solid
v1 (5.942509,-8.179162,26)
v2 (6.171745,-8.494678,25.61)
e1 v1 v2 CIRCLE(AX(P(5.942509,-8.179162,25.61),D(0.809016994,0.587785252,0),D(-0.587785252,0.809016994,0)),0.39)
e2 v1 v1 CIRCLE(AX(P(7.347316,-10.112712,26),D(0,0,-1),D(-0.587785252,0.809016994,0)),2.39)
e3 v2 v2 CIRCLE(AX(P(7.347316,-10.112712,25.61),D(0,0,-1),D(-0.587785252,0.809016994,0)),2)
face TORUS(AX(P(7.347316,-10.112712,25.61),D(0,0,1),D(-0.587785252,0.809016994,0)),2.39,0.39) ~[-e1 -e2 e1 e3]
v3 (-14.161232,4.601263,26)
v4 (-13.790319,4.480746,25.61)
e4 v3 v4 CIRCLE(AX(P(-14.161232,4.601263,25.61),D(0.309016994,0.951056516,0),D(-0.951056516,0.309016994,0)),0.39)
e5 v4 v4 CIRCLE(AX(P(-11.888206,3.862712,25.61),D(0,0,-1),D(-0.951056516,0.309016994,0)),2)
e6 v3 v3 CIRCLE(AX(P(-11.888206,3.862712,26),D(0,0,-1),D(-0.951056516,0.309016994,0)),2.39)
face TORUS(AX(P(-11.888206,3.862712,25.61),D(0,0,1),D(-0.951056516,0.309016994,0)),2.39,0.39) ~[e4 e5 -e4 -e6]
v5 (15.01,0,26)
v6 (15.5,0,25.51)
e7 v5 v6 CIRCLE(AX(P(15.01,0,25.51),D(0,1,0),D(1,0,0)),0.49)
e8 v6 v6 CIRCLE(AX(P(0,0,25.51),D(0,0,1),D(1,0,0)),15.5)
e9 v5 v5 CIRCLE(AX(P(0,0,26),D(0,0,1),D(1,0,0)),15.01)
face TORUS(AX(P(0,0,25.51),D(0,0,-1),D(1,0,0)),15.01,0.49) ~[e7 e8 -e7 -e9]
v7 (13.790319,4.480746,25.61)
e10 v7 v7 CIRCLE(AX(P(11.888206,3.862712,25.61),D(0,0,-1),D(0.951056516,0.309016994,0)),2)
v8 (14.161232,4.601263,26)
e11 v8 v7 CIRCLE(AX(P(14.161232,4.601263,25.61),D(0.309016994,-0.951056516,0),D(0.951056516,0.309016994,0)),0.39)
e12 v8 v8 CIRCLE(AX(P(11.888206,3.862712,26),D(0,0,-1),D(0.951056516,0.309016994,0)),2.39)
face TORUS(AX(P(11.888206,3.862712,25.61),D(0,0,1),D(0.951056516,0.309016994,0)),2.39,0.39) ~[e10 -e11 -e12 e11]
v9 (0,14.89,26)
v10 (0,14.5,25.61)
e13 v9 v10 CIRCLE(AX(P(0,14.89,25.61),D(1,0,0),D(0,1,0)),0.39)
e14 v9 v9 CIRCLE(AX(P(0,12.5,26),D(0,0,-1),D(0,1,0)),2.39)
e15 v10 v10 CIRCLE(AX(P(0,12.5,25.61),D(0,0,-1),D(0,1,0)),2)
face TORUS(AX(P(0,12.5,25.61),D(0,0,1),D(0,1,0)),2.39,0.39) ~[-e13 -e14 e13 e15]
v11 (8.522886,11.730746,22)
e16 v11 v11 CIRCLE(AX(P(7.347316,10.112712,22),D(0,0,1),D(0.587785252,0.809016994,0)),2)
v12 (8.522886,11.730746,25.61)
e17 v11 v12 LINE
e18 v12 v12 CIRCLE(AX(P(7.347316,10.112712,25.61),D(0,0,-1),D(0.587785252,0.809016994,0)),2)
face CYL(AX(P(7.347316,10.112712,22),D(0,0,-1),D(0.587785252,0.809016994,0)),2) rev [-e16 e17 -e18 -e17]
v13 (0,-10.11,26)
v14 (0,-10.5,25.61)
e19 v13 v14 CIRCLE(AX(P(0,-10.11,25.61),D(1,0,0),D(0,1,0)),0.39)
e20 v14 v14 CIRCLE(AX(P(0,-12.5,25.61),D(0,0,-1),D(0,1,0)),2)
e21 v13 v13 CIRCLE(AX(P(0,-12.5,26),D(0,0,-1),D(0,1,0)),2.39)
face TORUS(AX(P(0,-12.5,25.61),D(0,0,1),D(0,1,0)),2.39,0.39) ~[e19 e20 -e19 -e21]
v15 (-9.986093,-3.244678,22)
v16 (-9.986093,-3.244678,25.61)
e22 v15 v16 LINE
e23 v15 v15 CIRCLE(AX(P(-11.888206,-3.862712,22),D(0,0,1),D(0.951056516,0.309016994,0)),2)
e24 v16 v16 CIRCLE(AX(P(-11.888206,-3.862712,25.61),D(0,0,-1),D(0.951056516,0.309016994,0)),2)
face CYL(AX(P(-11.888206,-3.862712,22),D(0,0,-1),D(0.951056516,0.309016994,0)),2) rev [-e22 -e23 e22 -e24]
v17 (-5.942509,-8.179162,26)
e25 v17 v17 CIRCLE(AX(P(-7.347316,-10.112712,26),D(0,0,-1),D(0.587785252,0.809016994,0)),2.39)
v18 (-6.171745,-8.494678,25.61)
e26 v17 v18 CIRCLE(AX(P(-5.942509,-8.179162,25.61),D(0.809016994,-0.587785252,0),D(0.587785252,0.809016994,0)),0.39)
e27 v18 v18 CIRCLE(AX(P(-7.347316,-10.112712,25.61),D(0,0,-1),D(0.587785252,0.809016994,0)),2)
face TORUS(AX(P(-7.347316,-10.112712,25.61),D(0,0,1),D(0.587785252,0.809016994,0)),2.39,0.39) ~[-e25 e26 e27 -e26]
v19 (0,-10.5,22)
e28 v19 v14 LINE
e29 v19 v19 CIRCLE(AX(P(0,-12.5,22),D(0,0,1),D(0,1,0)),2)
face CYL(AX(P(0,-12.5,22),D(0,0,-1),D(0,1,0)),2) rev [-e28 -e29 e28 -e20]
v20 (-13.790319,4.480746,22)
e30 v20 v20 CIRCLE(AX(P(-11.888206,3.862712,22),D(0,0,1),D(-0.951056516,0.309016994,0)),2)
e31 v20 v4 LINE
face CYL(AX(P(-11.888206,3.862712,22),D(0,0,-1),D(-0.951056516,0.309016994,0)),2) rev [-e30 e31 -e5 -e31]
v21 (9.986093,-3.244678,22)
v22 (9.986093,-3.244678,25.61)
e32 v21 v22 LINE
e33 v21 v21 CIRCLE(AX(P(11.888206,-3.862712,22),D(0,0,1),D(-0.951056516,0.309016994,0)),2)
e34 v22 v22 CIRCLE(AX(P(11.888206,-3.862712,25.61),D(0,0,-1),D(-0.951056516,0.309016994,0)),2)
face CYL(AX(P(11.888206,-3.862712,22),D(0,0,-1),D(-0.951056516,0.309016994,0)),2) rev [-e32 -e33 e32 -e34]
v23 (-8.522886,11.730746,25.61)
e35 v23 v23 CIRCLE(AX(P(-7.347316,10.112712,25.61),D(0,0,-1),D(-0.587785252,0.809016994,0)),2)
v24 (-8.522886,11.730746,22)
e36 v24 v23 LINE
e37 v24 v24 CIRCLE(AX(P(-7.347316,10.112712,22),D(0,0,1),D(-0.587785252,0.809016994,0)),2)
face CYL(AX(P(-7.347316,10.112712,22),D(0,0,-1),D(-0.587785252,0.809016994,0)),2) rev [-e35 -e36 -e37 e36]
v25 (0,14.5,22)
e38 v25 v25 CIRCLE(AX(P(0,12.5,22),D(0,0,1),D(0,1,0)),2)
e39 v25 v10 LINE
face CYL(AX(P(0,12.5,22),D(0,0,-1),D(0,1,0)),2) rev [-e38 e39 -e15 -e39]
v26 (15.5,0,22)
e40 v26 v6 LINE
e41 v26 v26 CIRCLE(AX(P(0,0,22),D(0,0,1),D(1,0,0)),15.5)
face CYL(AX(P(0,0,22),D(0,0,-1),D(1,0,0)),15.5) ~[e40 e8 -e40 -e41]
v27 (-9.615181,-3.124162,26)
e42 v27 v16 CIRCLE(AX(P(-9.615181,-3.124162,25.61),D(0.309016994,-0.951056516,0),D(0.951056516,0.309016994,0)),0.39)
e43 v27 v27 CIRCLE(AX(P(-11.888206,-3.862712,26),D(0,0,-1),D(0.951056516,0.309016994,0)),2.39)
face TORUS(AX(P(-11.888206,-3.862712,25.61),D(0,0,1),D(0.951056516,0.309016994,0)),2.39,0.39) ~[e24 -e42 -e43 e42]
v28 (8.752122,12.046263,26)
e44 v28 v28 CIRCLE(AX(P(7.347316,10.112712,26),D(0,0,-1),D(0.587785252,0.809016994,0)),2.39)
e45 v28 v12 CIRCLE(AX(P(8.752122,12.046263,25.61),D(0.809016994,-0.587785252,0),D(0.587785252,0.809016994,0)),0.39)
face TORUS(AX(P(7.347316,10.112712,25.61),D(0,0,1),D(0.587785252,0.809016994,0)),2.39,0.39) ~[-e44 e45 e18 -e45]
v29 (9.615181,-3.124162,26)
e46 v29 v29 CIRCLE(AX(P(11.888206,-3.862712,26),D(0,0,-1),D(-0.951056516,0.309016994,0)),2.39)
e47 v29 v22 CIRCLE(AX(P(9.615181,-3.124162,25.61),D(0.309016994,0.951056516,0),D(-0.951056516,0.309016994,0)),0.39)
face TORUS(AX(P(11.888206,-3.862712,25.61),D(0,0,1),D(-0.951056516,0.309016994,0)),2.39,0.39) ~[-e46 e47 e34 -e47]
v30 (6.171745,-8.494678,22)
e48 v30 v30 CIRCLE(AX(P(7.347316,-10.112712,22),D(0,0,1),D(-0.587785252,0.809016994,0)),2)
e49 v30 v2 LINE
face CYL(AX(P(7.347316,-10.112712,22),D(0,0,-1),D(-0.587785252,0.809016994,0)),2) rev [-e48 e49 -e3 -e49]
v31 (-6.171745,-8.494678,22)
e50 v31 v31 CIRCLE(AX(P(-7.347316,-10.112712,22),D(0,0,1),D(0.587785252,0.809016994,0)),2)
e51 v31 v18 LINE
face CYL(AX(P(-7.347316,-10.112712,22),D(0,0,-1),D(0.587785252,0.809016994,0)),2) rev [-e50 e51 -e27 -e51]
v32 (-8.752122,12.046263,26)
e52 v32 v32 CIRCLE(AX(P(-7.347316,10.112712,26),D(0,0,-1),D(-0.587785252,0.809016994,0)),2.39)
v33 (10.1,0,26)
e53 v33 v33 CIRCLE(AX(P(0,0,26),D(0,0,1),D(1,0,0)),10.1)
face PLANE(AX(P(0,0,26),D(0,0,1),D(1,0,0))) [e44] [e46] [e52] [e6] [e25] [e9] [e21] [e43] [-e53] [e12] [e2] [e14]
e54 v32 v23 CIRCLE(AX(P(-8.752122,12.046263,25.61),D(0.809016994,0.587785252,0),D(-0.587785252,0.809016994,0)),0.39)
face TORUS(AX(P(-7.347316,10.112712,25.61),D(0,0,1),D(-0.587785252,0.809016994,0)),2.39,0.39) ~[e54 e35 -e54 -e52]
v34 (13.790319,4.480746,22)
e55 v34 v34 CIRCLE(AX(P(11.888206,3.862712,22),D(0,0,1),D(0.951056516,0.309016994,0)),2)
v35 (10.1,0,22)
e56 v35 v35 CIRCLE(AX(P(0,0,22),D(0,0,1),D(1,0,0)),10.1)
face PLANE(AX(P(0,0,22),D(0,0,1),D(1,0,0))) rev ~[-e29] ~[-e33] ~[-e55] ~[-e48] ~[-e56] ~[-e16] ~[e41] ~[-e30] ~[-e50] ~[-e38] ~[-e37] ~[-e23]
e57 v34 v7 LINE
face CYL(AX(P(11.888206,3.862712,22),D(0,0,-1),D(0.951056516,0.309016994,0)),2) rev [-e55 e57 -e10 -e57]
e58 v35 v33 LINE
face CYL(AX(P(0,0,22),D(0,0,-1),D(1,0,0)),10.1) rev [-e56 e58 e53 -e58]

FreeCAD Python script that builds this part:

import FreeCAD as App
import Part
import Sketcher
from FreeCAD import Vector
Q = App.Units.Quantity


def edges_at(feature, points):
    """Names of the edges that pass closest to the given points."""
    edges = feature.Shape.Edges
    near = lambda p: min(range(len(edges)), key=lambda i: edges[i].distToShape(Part.Vertex(*p))[0])
    return sorted({f"Edge{near(p) + 1}" for p in points})

doc = App.newDocument("Part")
body = doc.addObject("PartDesign::Body", "Body")

# Sketch on XY plane
sketch1 = body.newObject("Sketcher::SketchObject", "Sketch")
sketch1.AttachmentSupport = (doc.getObject("XY_Plane"), [""])
sketch1.MapMode = "FlatFace"
sketch1.AttachmentOffset = App.Placement(Vector(0, 0, 22), App.Rotation())
sketch1.addGeometry(Part.Circle(Vector(0, 0, 0), Vector(0, 0, 1), 10), False)
sketch1.addConstraint([
    Sketcher.Constraint("Coincident", 0, 3, -1, 1),
    Sketcher.Constraint("Diameter", 0, Q("20.2 mm")),
])
pad1 = body.newObject("PartDesign::Pad", "Pad")
pad1.Profile = sketch1
pad1.Length = 4
body2 = doc.addObject("PartDesign::Body", "Body001")

# Sketch on XY plane
sketch2 = body2.newObject("Sketcher::SketchObject", "Sketch001")
sketch2.AttachmentSupport = (doc.getObject("XY_Plane001"), [""])
sketch2.MapMode = "FlatFace"
sketch2.AttachmentOffset = App.Placement(Vector(0, 0, 13), App.Rotation())
sketch2.addGeometry(Part.Circle(Vector(-12.5, 0, 0), Vector(0, 0, 1), 2), False)
sketch2.addConstraint([
    Sketcher.Constraint("PointOnObject", 0, 3, -1),
    Sketcher.Constraint("Diameter", 0, Q("4 mm")),
    Sketcher.Constraint("DistanceX", 0, 3, -1, 1, Q("12.5 mm")),
])
pad2 = body2.newObject("PartDesign::Pad", "Pad001")
pad2.Profile = sketch2
pad2.Length = 10
body3 = doc.addObject("PartDesign::Body", "Body002")
body3.AllowCompound = True

# Sketch on XY plane
sketch3 = body3.newObject("Sketcher::SketchObject", "Sketch002")
sketch3.AttachmentSupport = (doc.getObject("XY_Plane002"), [""])
sketch3.MapMode = "FlatFace"
sketch3.AttachmentOffset = App.Placement(Vector(0, 0, 13), App.Rotation())
sketch3.addGeometry(Part.Circle(Vector(12.5, 0, 0), Vector(0, 0, 1), 2), False)
sketch3.addConstraint([
    Sketcher.Constraint("PointOnObject", 0, 3, -1),
    Sketcher.Constraint("Diameter", 0, Q("4 mm")),
    Sketcher.Constraint("DistanceX", -1, 1, 0, 3, Q("12.5 mm")),
])
pad3 = body3.newObject("PartDesign::Pad", "Pad002")
pad3.Profile = sketch3
pad3.Length = 10
doc.recompute()

boolean = body3.newObject("PartDesign::Boolean", "Boolean")
boolean.Type = "Fuse"
boolean.addObjects([body2])
body4 = doc.addObject("PartDesign::Body", "Body003")
body4.AllowCompound = True
doc.recompute()

body3.Placement = App.Placement(Vector(0, 0, 0), App.Rotation(Vector(0, 0, 1), 54))
boolean2 = body4.newObject("PartDesign::Boolean", "Boolean001")
boolean2.Type = "Fuse"
boolean2.addObjects([body3])
body5 = doc.addObject("PartDesign::Body", "Body004")

# Sketch on XY plane
sketch4 = body5.newObject("Sketcher::SketchObject", "Sketch003")
sketch4.AttachmentSupport = (doc.getObject("XY_Plane004"), [""])
sketch4.MapMode = "FlatFace"
sketch4.AttachmentOffset = App.Placement(Vector(0, 0, 13), App.Rotation())
sketch4.addGeometry(Part.Circle(Vector(-12.5, 0, 0), Vector(0, 0, 1), 2), False)
sketch4.addConstraint([
    Sketcher.Constraint("PointOnObject", 0, 3, -1),
    Sketcher.Constraint("Diameter", 0, Q("4 mm")),
    Sketcher.Constraint("DistanceX", 0, 3, -1, 1, Q("12.5 mm")),
])
pad4 = body5.newObject("PartDesign::Pad", "Pad003")
pad4.Profile = sketch4
pad4.Length = 10
body6 = doc.addObject("PartDesign::Body", "Body005")
body6.AllowCompound = True

# Sketch on XY plane
sketch5 = body6.newObject("Sketcher::SketchObject", "Sketch004")
sketch5.AttachmentSupport = (doc.getObject("XY_Plane005"), [""])
sketch5.MapMode = "FlatFace"
sketch5.AttachmentOffset = App.Placement(Vector(0, 0, 13), App.Rotation())
sketch5.addGeometry(Part.Circle(Vector(12.5, 0, 0), Vector(0, 0, 1), 2), False)
sketch5.addConstraint([
    Sketcher.Constraint("PointOnObject", 0, 3, -1),
    Sketcher.Constraint("Diameter", 0, Q("4 mm")),
    Sketcher.Constraint("DistanceX", -1, 1, 0, 3, Q("12.5 mm")),
])
pad5 = body6.newObject("PartDesign::Pad", "Pad004")
pad5.Profile = sketch5
pad5.Length = 10
doc.recompute()

boolean3 = body6.newObject("PartDesign::Boolean", "Boolean002")
boolean3.Type = "Fuse"
boolean3.addObjects([body5])
body7 = doc.addObject("PartDesign::Body", "Body006")
body7.AllowCompound = True
doc.recompute()

body6.Placement = App.Placement(Vector(0, 0, 0), App.Rotation(Vector(0, 0, 1), 162))
boolean4 = body7.newObject("PartDesign::Boolean", "Boolean003")
boolean4.Type = "Fuse"
boolean4.addObjects([body6])
body8 = doc.addObject("PartDesign::Body", "Body007")

# Sketch on XY plane
sketch6 = body8.newObject("Sketcher::SketchObject", "Sketch005")
sketch6.AttachmentSupport = (doc.getObject("XY_Plane007"), [""])
sketch6.MapMode = "FlatFace"
sketch6.AttachmentOffset = App.Placement(Vector(0, 0, 13), App.Rotation())
sketch6.addGeometry(Part.Circle(Vector(-12.5, 0, 0), Vector(0, 0, 1), 2), False)
sketch6.addConstraint([
    Sketcher.Constraint("PointOnObject", 0, 3, -1),
    Sketcher.Constraint("Diameter", 0, Q("4 mm")),
    Sketcher.Constraint("DistanceX", 0, 3, -1, 1, Q("12.5 mm")),
])
pad6 = body8.newObject("PartDesign::Pad", "Pad005")
pad6.Profile = sketch6
pad6.Length = 10
body9 = doc.addObject("PartDesign::Body", "Body008")
body9.AllowCompound = True

# Sketch on XY plane
sketch7 = body9.newObject("Sketcher::SketchObject", "Sketch006")
sketch7.AttachmentSupport = (doc.getObject("XY_Plane008"), [""])
sketch7.MapMode = "FlatFace"
sketch7.AttachmentOffset = App.Placement(Vector(0, 0, 13), App.Rotation())
sketch7.addGeometry(Part.Circle(Vector(12.5, 0, 0), Vector(0, 0, 1), 2), False)
sketch7.addConstraint([
    Sketcher.Constraint("PointOnObject", 0, 3, -1),
    Sketcher.Constraint("Diameter", 0, Q("4 mm")),
    Sketcher.Constraint("DistanceX", -1, 1, 0, 3, Q("12.5 mm")),
])
pad7 = body9.newObject("PartDesign::Pad", "Pad006")
pad7.Profile = sketch7
pad7.Length = 10
doc.recompute()

boolean5 = body9.newObject("PartDesign::Boolean", "Boolean004")
boolean5.Type = "Fuse"
boolean5.addObjects([body8])
body10 = doc.addObject("PartDesign::Body", "Body009")
body10.AllowCompound = True
doc.recompute()

body9.Placement = App.Placement(Vector(0, 0, 0), App.Rotation(Vector(0, 0, 1), 126))
boolean6 = body10.newObject("PartDesign::Boolean", "Boolean005")
boolean6.Type = "Fuse"
boolean6.addObjects([body9])
body11 = doc.addObject("PartDesign::Body", "Body010")

# Sketch on XY plane
sketch8 = body11.newObject("Sketcher::SketchObject", "Sketch007")
sketch8.AttachmentSupport = (doc.getObject("XY_Plane010"), [""])
sketch8.MapMode = "FlatFace"
sketch8.AttachmentOffset = App.Placement(Vector(0, 0, 13), App.Rotation())
sketch8.addGeometry(Part.Circle(Vector(-12.5, 0, 0), Vector(0, 0, 1), 2), False)
sketch8.addConstraint([
    Sketcher.Constraint("PointOnObject", 0, 3, -1),
    Sketcher.Constraint("Diameter", 0, Q("4 mm")),
    Sketcher.Constraint("DistanceX", 0, 3, -1, 1, Q("12.5 mm")),
])
pad8 = body11.newObject("PartDesign::Pad", "Pad007")
pad8.Profile = sketch8
pad8.Length = 10
body12 = doc.addObject("PartDesign::Body", "Body011")
body12.AllowCompound = True

# Sketch on XY plane
sketch9 = body12.newObject("Sketcher::SketchObject", "Sketch008")
sketch9.AttachmentSupport = (doc.getObject("XY_Plane011"), [""])
sketch9.MapMode = "FlatFace"
sketch9.AttachmentOffset = App.Placement(Vector(0, 0, 13), App.Rotation())
sketch9.addGeometry(Part.Circle(Vector(12.5, 0, 0), Vector(0, 0, 1), 2), False)
sketch9.addConstraint([
    Sketcher.Constraint("PointOnObject", 0, 3, -1),
    Sketcher.Constraint("Diameter", 0, Q("4 mm")),
    Sketcher.Constraint("DistanceX", -1, 1, 0, 3, Q("12.5 mm")),
])
pad9 = body12.newObject("PartDesign::Pad", "Pad008")
pad9.Profile = sketch9
pad9.Length = 10
doc.recompute()

boolean7 = body12.newObject("PartDesign::Boolean", "Boolean006")
boolean7.Type = "Fuse"
boolean7.addObjects([body11])
body13 = doc.addObject("PartDesign::Body", "Body012")
body13.AllowCompound = True
doc.recompute()

body12.Placement = App.Placement(Vector(0, 0, 0), App.Rotation(Vector(0, 0, 1), 90))
boolean8 = body13.newObject("PartDesign::Boolean", "Boolean007")
boolean8.Type = "Fuse"
boolean8.addObjects([body12])
body14 = doc.addObject("PartDesign::Body", "Body013")

# Sketch on XY plane
sketch10 = body14.newObject("Sketcher::SketchObject", "Sketch009")
sketch10.AttachmentSupport = (doc.getObject("XY_Plane013"), [""])
sketch10.MapMode = "FlatFace"
sketch10.AttachmentOffset = App.Placement(Vector(0, 0, 13), App.Rotation())
sketch10.addGeometry(Part.Circle(Vector(-12.5, 0, 0), Vector(0, 0, 1), 2), False)
sketch10.addConstraint([
    Sketcher.Constraint("PointOnObject", 0, 3, -1),
    Sketcher.Constraint("Diameter", 0, Q("4 mm")),
    Sketcher.Constraint("DistanceX", 0, 3, -1, 1, Q("12.5 mm")),
])
pad10 = body14.newObject("PartDesign::Pad", "Pad009")
pad10.Profile = sketch10
pad10.Length = 10
body15 = doc.addObject("PartDesign::Body", "Body014")
body15.AllowCompound = True

# Sketch on XY plane
sketch11 = body15.newObject("Sketcher::SketchObject", "Sketch010")
sketch11.AttachmentSupport = (doc.getObject("XY_Plane014"), [""])
sketch11.MapMode = "FlatFace"
sketch11.AttachmentOffset = App.Placement(Vector(0, 0, 13), App.Rotation())
sketch11.addGeometry(Part.Circle(Vector(12.5, 0, 0), Vector(0, 0, 1), 2), False)
sketch11.addConstraint([
    Sketcher.Constraint("PointOnObject", 0, 3, -1),
    Sketcher.Constraint("Diameter", 0, Q("4 mm")),
    Sketcher.Constraint("DistanceX", -1, 1, 0, 3, Q("12.5 mm")),
])
pad11 = body15.newObject("PartDesign::Pad", "Pad010")
pad11.Profile = sketch11
pad11.Length = 10
doc.recompute()

boolean9 = body15.newObject("PartDesign::Boolean", "Boolean008")
boolean9.Type = "Fuse"
boolean9.addObjects([body14])
body16 = doc.addObject("PartDesign::Body", "Body015")
body16.AllowCompound = True
doc.recompute()

body15.Placement = App.Placement(Vector(0, 0, 0), App.Rotation(Vector(0, 0, 1), 18))
boolean10 = body16.newObject("PartDesign::Boolean", "Boolean009")
boolean10.Type = "Fuse"
boolean10.addObjects([body15])
doc.recompute()

boolean11 = body16.newObject("PartDesign::Boolean", "Boolean010")
boolean11.Type = "Fuse"
boolean11.addObjects([body4])
doc.recompute()

boolean12 = body16.newObject("PartDesign::Boolean", "Boolean011")
boolean12.Type = "Fuse"
boolean12.addObjects([body7])
doc.recompute()

boolean13 = body16.newObject("PartDesign::Boolean", "Boolean012")
boolean13.Type = "Fuse"
boolean13.addObjects([body10])
doc.recompute()

boolean14 = body16.newObject("PartDesign::Boolean", "Boolean013")
boolean14.Type = "Fuse"
boolean14.addObjects([body13])
body17 = doc.addObject("PartDesign::Body", "Body016")
body17.AllowCompound = True
doc.recompute()

body16.Placement = App.Placement(Vector(0, 0, 9), App.Rotation(Vector(0, 0, 1), 0))
boolean15 = body17.newObject("PartDesign::Boolean", "Boolean014")
boolean15.Type = "Fuse"
boolean15.addObjects([body16])
body18 = doc.addObject("PartDesign::Body", "Body017")

# Sketch on XY plane
sketch12 = body18.newObject("Sketcher::SketchObject", "Sketch011")
sketch12.AttachmentSupport = (doc.getObject("XY_Plane017"), [""])
sketch12.MapMode = "FlatFace"
sketch12.AttachmentOffset = App.Placement(Vector(0, 0, 22), App.Rotation())
sketch12.addGeometry(Part.Circle(Vector(0, 0, 0), Vector(0, 0, 1), 16), False)
sketch12.addConstraint([
    Sketcher.Constraint("Coincident", 0, 3, -1, 1),
    Sketcher.Constraint("Diameter", 0, Q("31 mm")),
])
pad12 = body18.newObject("PartDesign::Pad", "Pad011")
pad12.Profile = sketch12
pad12.Length = 4
doc.recompute()

boolean16 = body18.newObject("PartDesign::Boolean", "Boolean015")
boolean16.Type = "Cut"
boolean16.addObjects([body17])
doc.recompute()

fillet = body18.newObject("PartDesign::Fillet", "Fillet")
fillet.Base = (boolean16, edges_at(boolean16, [
    (0, 10.5, 26),
    (8.523, -11.731, 26),
    (9.986, 3.245, 26),
    (-8.523, -11.731, 26),
    (6.172, 8.495, 26),
    (13.79, -4.481, 26),
    (-13.79, -4.481, 26),
    (-6.172, 8.495, 26),
    (-9.986, 3.245, 26),
    (0, -14.5, 26),
]))
fillet.Radius = 0.39
doc.recompute()

boolean17 = body18.newObject("PartDesign::Boolean", "Boolean016")
boolean17.Type = "Cut"
boolean17.addObjects([body])
doc.recompute()

fillet2 = body18.newObject("PartDesign::Fillet", "Fillet001")
fillet2.Base = (boolean17, edges_at(boolean17, [(-15.5, 0, 26)]))
fillet2.Radius = 0.49

doc.recompute()
